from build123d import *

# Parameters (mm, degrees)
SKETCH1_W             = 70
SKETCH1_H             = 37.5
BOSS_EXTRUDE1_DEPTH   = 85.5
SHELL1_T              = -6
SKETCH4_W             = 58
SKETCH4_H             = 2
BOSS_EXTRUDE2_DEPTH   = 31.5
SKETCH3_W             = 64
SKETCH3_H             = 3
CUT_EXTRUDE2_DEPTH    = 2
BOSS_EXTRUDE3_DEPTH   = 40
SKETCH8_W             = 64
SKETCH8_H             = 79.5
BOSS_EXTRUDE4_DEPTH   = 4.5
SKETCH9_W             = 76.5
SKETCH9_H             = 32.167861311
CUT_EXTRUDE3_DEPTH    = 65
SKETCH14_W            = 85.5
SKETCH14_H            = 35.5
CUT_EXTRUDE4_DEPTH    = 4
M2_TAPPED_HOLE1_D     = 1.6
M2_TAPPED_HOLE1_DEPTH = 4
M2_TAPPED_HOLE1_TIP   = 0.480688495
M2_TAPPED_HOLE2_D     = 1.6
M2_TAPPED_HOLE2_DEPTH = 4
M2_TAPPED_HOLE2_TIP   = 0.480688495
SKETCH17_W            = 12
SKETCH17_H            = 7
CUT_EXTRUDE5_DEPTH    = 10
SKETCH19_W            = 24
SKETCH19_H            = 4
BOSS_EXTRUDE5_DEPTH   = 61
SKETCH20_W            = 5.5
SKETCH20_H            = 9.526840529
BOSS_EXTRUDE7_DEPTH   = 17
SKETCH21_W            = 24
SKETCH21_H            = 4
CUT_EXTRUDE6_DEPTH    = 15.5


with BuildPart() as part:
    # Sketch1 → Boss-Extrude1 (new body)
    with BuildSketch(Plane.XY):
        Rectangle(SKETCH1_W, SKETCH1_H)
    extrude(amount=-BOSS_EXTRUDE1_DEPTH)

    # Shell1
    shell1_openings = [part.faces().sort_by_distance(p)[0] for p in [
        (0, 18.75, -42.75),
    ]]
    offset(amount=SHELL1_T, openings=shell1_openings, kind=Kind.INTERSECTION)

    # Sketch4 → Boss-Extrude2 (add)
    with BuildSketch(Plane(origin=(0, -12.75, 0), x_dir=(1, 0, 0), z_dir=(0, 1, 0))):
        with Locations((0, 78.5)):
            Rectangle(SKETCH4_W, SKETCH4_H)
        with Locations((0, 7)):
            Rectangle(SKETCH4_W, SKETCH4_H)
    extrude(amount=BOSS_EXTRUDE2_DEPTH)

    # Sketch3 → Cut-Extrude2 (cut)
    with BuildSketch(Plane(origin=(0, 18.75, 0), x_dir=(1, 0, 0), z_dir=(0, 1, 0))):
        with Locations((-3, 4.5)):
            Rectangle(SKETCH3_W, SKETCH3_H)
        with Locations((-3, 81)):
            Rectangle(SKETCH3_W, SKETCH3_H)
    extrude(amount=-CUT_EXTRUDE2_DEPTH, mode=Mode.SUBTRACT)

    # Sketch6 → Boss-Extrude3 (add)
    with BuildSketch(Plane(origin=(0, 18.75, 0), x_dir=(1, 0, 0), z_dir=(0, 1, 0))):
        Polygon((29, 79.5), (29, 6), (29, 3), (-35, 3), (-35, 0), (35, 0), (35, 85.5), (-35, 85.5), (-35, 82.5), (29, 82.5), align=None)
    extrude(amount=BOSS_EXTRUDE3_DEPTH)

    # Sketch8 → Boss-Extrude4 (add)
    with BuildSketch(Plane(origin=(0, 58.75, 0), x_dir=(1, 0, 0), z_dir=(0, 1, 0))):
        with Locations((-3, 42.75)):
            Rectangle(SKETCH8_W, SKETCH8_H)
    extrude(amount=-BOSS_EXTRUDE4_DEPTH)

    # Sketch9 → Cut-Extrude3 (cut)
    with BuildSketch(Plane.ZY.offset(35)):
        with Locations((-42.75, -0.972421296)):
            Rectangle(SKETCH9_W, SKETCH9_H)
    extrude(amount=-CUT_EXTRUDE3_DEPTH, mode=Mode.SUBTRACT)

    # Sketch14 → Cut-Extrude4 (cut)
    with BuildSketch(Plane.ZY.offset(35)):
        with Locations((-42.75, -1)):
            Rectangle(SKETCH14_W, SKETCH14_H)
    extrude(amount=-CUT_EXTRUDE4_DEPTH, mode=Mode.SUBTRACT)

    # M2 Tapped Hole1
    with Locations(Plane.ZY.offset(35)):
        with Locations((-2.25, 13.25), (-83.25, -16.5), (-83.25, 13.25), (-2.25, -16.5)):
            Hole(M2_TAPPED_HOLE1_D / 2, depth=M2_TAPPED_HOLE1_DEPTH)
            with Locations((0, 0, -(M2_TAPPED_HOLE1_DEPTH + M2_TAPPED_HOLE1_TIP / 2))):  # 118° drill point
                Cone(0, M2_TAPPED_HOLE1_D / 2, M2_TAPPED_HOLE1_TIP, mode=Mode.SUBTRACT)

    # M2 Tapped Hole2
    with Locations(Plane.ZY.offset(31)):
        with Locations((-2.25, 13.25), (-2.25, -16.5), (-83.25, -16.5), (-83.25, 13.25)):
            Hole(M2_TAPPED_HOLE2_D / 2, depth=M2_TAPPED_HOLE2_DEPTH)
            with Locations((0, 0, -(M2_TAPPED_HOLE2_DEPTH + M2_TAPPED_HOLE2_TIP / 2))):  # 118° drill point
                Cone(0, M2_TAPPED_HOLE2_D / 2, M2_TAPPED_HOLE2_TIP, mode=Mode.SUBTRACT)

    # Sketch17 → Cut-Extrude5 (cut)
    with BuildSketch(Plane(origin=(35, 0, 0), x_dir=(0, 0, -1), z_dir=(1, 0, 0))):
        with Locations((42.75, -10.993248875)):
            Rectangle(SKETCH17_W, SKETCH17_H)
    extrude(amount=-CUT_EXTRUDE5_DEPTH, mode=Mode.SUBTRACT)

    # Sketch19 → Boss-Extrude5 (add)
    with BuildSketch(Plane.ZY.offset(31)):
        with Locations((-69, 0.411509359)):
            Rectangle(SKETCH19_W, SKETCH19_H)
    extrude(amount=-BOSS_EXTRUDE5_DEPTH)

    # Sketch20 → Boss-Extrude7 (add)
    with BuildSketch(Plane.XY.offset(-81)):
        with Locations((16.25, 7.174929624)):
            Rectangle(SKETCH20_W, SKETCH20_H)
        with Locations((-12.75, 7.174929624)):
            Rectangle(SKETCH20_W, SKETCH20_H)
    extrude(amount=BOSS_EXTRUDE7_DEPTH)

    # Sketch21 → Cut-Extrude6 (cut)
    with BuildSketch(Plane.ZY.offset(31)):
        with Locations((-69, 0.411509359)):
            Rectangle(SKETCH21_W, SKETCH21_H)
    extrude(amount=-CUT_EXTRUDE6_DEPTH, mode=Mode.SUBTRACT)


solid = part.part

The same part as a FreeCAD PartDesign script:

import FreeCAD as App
import Part
import Sketcher
from FreeCAD import Vector
Q = App.Units.Quantity


def faces_at(feature, points):
    """Names of the faces that lie closest to the given points."""
    faces = feature.Shape.Faces
    near = lambda p: min(range(len(faces)), key=lambda i: faces[i].distToShape(Part.Vertex(*p))[0])
    return sorted({f"Face{near(p) + 1}" for p in points})


def add_polygon(sketch, points):
    """Adds a closed chain of lines whose ends are joined by coincident constraints."""
    first, n = sketch.GeometryCount, len(points)
    for a, b in zip(points, points[1:] + points[:1]):
        sketch.addGeometry(Part.LineSegment(App.Vector(*a, 0), App.Vector(*b, 0)), False)
    for i in range(n):
        sketch.addConstraint(Sketcher.Constraint("Coincident", first + i, 2, first + (i + 1) % n, 1))

doc = App.newDocument("Part")
params = doc.addObject("Spreadsheet::Sheet", "Params")
for row, (alias, value) in enumerate([
    ("sketch1_width", "70 mm"),
    ("sketch1_height", "37.5 mm"),
    ("pad1_length", "85.5 mm"),
    ("thickness_wall", "6 mm"),
    ("sketch2_width", "58 mm"),
    ("sketch2_height", "2 mm"),
    ("pad2_length", "31.5 mm"),
    ("sketch3_width", "64 mm"),
    ("sketch3_height", "3 mm"),
    ("pocket1_length", "2 mm"),
    ("sketch4_width", "64 mm"),
    ("sketch4_width2", "70 mm"),
    ("sketch4_height", "3 mm"),
    ("sketch4_height2", "85.5 mm"),
    ("pad3_length", "40 mm"),
    ("sketch5_width", "64 mm"),
    ("sketch5_height", "79.5 mm"),
    ("pad4_length", "4.5 mm"),
    ("sketch6_height", "76.5 mm"),
    ("pocket2_length", "65 mm"),
    ("sketch7_width", "35.5 mm"),
    ("sketch7_height", "85.5 mm"),
    ("pocket3_length", "4 mm"),
    ("sketch8_diameter", "1.6 mm"),
    ("hole_diameter", "1.6 mm"),
    ("hole_depth", "4 mm"),
    ("sketch9_diameter", "1.6 mm"),
    ("hole2_diameter", "1.6 mm"),
    ("hole2_depth", "4 mm"),
    ("sketch10_width", "7 mm"),
    ("sketch10_height", "12 mm"),
    ("pocket4_length", "10 mm"),
    ("sketch11_width", "4 mm"),
    ("sketch11_height", "24 mm"),
    ("pad5_length", "61 mm"),
    ("sketch12_width", "5.5 mm"),
    ("pad6_length", "17 mm"),
    ("sketch13_width", "4 mm"),
    ("sketch13_height", "24 mm"),
    ("pocket5_length", "15.5 mm"),
], start=1):
    params.set(f"A{row}", alias)
    params.set(f"B{row}", "=" + value)
    params.setAlias(f"B{row}", alias)

body = doc.addObject("PartDesign::Body", "Body")

# Sketch on XY plane
sketch1 = body.newObject("Sketcher::SketchObject", "Sketch")
sketch1.AttachmentSupport = (doc.getObject("XY_Plane"), [""])
sketch1.MapMode = "FlatFace"
add_polygon(sketch1, [(-35, 19), (-35, -19), (35, -19), (35, 19)])  # lines 0-3
sketch1.addConstraint(Sketcher.Constraint("Vertical", 0))
sketch1.addConstraint(Sketcher.Constraint("Horizontal", 1))
sketch1.addConstraint(Sketcher.Constraint("Vertical", 2))
sketch1.addConstraint(Sketcher.Constraint("Horizontal", 3))
sketch1.addConstraint(Sketcher.Constraint("Symmetric", 0, 2, 2, 2, -1, 1))
sketch1.addConstraint(Sketcher.Constraint("DistanceX", 1, 1, 1, 2, Q("70 mm")))
sketch1.addConstraint(Sketcher.Constraint("DistanceY", 0, 2, 0, 1, Q("37.5 mm")))
sketch1.setExpression("Constraints[9]", "Params.sketch1_width")
sketch1.setExpression("Constraints[10]", "Params.sketch1_height")
pad1 = body.newObject("PartDesign::Pad", "Pad")
pad1.Profile = sketch1
pad1.setExpression("Length", "Params.pad1_length")
pad1.Reversed = True
doc.recompute()

thickness = body.newObject("PartDesign::Thickness", "Thickness")
thickness.Base = (pad1, faces_at(pad1, [(0, 18.75, -42.75)]))
thickness.setExpression("Value", "Params.thickness_wall")
thickness.Reversed = True
thickness.Join = "Intersection"

# Sketch on XZ plane
sketch2 = body.newObject("Sketcher::SketchObject", "Sketch001")
sketch2.AttachmentSupport = (doc.getObject("XZ_Plane"), [""])
sketch2.MapMode = "FlatFace"
sketch2.AttachmentOffset = App.Placement(Vector(0, 0, 12.75), App.Rotation())
add_polygon(sketch2, [(-29, -79.5), (-29, -77.5), (29, -77.5), (29, -79.5)])  # lines 0-3
add_polygon(sketch2, [(-29, -8), (-29, -6), (29, -6), (29, -8)])  # lines 4-7
sketch2.addConstraint(Sketcher.Constraint("Vertical", 0))
sketch2.addConstraint(Sketcher.Constraint("Horizontal", 1))
sketch2.addConstraint(Sketcher.Constraint("Vertical", 2))
sketch2.addConstraint(Sketcher.Constraint("Horizontal", 3))
sketch2.addConstraint(Sketcher.Constraint("Vertical", 4))
sketch2.addConstraint(Sketcher.Constraint("Horizontal", 5))
sketch2.addConstraint(Sketcher.Constraint("Vertical", 6))
sketch2.addConstraint(Sketcher.Constraint("Horizontal", 7))
sketch2.addConstraint(Sketcher.Constraint("Vertical", 3, 2, 4, 2))
sketch2.addConstraint(Sketcher.Constraint("Vertical", 2, 2, 5, 2))
sketch2.addConstraint(Sketcher.Constraint("Equal", 2, 4))
sketch2.addConstraint(Sketcher.Constraint("DistanceX", 1, 1, 1, 2, Q("58 mm")))
sketch2.addConstraint(Sketcher.Constraint("DistanceY", 0, 1, 0, 2, Q("2 mm")))
sketch2.addConstraint(Sketcher.Constraint("DistanceX", 0, 2, -1, 1, Q("29 mm")))
sketch2.addConstraint(Sketcher.Constraint("DistanceY", 4, 2, -1, 1, Q("6 mm")))
sketch2.addConstraint(Sketcher.Constraint("DistanceY", 0, 2, -1, 1, Q("77.5 mm")))
sketch2.setExpression("Constraints[19]", "Params.sketch2_width")
sketch2.setExpression("Constraints[20]", "Params.sketch2_height")
pad2 = body.newObject("PartDesign::Pad", "Pad001")
pad2.Profile = sketch2
pad2.setExpression("Length", "Params.pad2_length")
pad2.Reversed = True

# Sketch on XZ plane
sketch3 = body.newObject("Sketcher::SketchObject", "Sketch002")
sketch3.AttachmentSupport = (doc.getObject("XZ_Plane"), [""])
sketch3.MapMode = "FlatFace"
sketch3.AttachmentOffset = App.Placement(Vector(0, 0, -18.75), App.Rotation())
add_polygon(sketch3, [(-35, -6), (-35, -3), (29, -3), (29, -6)])  # lines 0-3
add_polygon(sketch3, [(-35, -82.5), (-35, -79.5), (29, -79.5), (29, -82.5)])  # lines 4-7
sketch3.addConstraint(Sketcher.Constraint("Vertical", 0))
sketch3.addConstraint(Sketcher.Constraint("Horizontal", 1))
sketch3.addConstraint(Sketcher.Constraint("Vertical", 2))
sketch3.addConstraint(Sketcher.Constraint("Horizontal", 3))
sketch3.addConstraint(Sketcher.Constraint("Vertical", 4))
sketch3.addConstraint(Sketcher.Constraint("Horizontal", 5))
sketch3.addConstraint(Sketcher.Constraint("Vertical", 6))
sketch3.addConstraint(Sketcher.Constraint("Horizontal", 7))
sketch3.addConstraint(Sketcher.Constraint("Vertical", 3, 2, 4, 2))
sketch3.addConstraint(Sketcher.Constraint("Vertical", 2, 2, 5, 2))
sketch3.addConstraint(Sketcher.Constraint("Equal", 2, 4))
sketch3.addConstraint(Sketcher.Constraint("DistanceX", 1, 1, 1, 2, Q("64 mm")))
sketch3.addConstraint(Sketcher.Constraint("DistanceY", 0, 1, 0, 2, Q("3 mm")))
sketch3.addConstraint(Sketcher.Constraint("DistanceX", 0, 2, -1, 1, Q("35 mm")))
sketch3.addConstraint(Sketcher.Constraint("DistanceY", 0, 2, -1, 1, Q("3 mm")))
sketch3.addConstraint(Sketcher.Constraint("DistanceY", 4, 2, -1, 1, Q("79.5 mm")))
sketch3.setExpression("Constraints[19]", "Params.sketch3_width")
sketch3.setExpression("Constraints[20]", "Params.sketch3_height")
pocket1 = body.newObject("PartDesign::Pocket", "Pocket")
pocket1.Profile = sketch3
pocket1.setExpression("Length", "Params.pocket1_length")
pocket1.Reversed = True

# Sketch on XZ plane
sketch4 = body.newObject("Sketcher::SketchObject", "Sketch003")
sketch4.AttachmentSupport = (doc.getObject("XZ_Plane"), [""])
sketch4.MapMode = "FlatFace"
sketch4.AttachmentOffset = App.Placement(Vector(0, 0, -18.75), App.Rotation())
add_polygon(sketch4, [(29, -3), (-35, -3), (-35, 0), (35, 0), (35, -85.5), (-35, -85.5), (-35, -82.5), (29, -82.5)])  # lines 0-7
sketch4.addConstraint(Sketcher.Constraint("Horizontal", 0))
sketch4.addConstraint(Sketcher.Constraint("Vertical", 1))
sketch4.addConstraint(Sketcher.Constraint("Horizontal", 2))
sketch4.addConstraint(Sketcher.Constraint("Vertical", 3))
sketch4.addConstraint(Sketcher.Constraint("Horizontal", 4))
sketch4.addConstraint(Sketcher.Constraint("Vertical", 5))
sketch4.addConstraint(Sketcher.Constraint("Horizontal", 6))
sketch4.addConstraint(Sketcher.Constraint("Vertical", 7))
sketch4.addConstraint(Sketcher.Constraint("Symmetric", 1, 2, 2, 2, -1, 1))
sketch4.addConstraint(Sketcher.Constraint("Vertical", 1, 2, 4, 2))
sketch4.addConstraint(Sketcher.Constraint("Equal", 1, 5))
sketch4.addConstraint(Sketcher.Constraint("DistanceX", 0, 2, 0, 1, Q("64 mm")))
sketch4.addConstraint(Sketcher.Constraint("DistanceX", 2, 1, 2, 2, Q("70 mm")))
sketch4.addConstraint(Sketcher.Constraint("DistanceY", 1, 1, 1, 2, Q("3 mm")))
sketch4.addConstraint(Sketcher.Constraint("DistanceY", 3, 2, 3, 1, Q("85.5 mm")))
sketch4.setExpression("Constraints[19]", "Params.sketch4_width")
sketch4.setExpression("Constraints[20]", "Params.sketch4_width2")
sketch4.setExpression("Constraints[21]", "Params.sketch4_height")
sketch4.setExpression("Constraints[22]", "Params.sketch4_height2")
pad3 = body.newObject("PartDesign::Pad", "Pad002")
pad3.Profile = sketch4
pad3.setExpression("Length", "Params.pad3_length")
pad3.Reversed = True

# Sketch on XZ plane
sketch5 = body.newObject("Sketcher::SketchObject", "Sketch004")
sketch5.AttachmentSupport = (doc.getObject("XZ_Plane"), [""])
sketch5.MapMode = "FlatFace"
sketch5.AttachmentOffset = App.Placement(Vector(0, 0, -58.75), App.Rotation())
add_polygon(sketch5, [(-35, -82), (-35, -3), (29, -3), (29, -82)])  # lines 0-3
sketch5.addConstraint(Sketcher.Constraint("Vertical", 0))
sketch5.addConstraint(Sketcher.Constraint("Horizontal", 1))
sketch5.addConstraint(Sketcher.Constraint("Vertical", 2))
sketch5.addConstraint(Sketcher.Constraint("Horizontal", 3))
sketch5.addConstraint(Sketcher.Constraint("DistanceX", 1, 1, 1, 2, Q("64 mm")))
sketch5.addConstraint(Sketcher.Constraint("DistanceY", 0, 1, 0, 2, Q("79.5 mm")))
sketch5.addConstraint(Sketcher.Constraint("DistanceX", 0, 2, -1, 1, Q("35 mm")))
sketch5.addConstraint(Sketcher.Constraint("DistanceY", 0, 2, -1, 1, Q("3 mm")))
sketch5.setExpression("Constraints[8]", "Params.sketch5_width")
sketch5.setExpression("Constraints[9]", "Params.sketch5_height")
pad4 = body.newObject("PartDesign::Pad", "Pad003")
pad4.Profile = sketch5
pad4.setExpression("Length", "Params.pad4_length")

# Sketch on YZ plane
sketch6 = body.newObject("Sketcher::SketchObject", "Sketch005")
sketch6.AttachmentSupport = (doc.getObject("YZ_Plane"), [""])
sketch6.MapMode = "FlatFace"
sketch6.AttachmentOffset = App.Placement(Vector(0, 0, -35), App.Rotation())
add_polygon(sketch6, [(15, -81), (-17, -81), (-17, -4), (15, -4)])  # lines 0-3
sketch6.addConstraint(Sketcher.Constraint("Horizontal", 0))
sketch6.addConstraint(Sketcher.Constraint("Vertical", 1))
sketch6.addConstraint(Sketcher.Constraint("Horizontal", 2))
sketch6.addConstraint(Sketcher.Constraint("Vertical", 3))
sketch6.addConstraint(Sketcher.Constraint("DistanceY", 1, 1, 1, 2, Q("76.5 mm")))
sketch6.addConstraint(Sketcher.Constraint("DistanceY", 0, 2, -1, 1, Q("81 mm")))
sketch6.addConstraint(Sketcher.Constraint("DistanceX", 0, 2, 0, 1, Q("32.167861 mm")))
sketch6.addConstraint(Sketcher.Constraint("DistanceX", 0, 2, -1, 1, Q("17.056352 mm")))
sketch6.setExpression("Constraints[8]", "Params.sketch6_height")
pocket2 = body.newObject("PartDesign::Pocket", "Pocket001")
pocket2.Profile = sketch6
pocket2.setExpression("Length", "Params.pocket2_length")
pocket2.Reversed = True

# Sketch on YZ plane
sketch7 = body.newObject("Sketcher::SketchObject", "Sketch006")
sketch7.AttachmentSupport = (doc.getObject("YZ_Plane"), [""])
sketch7.MapMode = "FlatFace"
sketch7.AttachmentOffset = App.Placement(Vector(0, 0, -35), App.Rotation())
add_polygon(sketch7, [(17, -86), (-19, -86), (-19, 0), (17, 0)])  # lines 0-3
sketch7.addConstraint(Sketcher.Constraint("Horizontal", 0))
sketch7.addConstraint(Sketcher.Constraint("Vertical", 1))
sketch7.addConstraint(Sketcher.Constraint("Horizontal", 2))
sketch7.addConstraint(Sketcher.Constraint("Vertical", 3))
sketch7.addConstraint(Sketcher.Constraint("PointOnObject", 1, 2, -1))
sketch7.addConstraint(Sketcher.Constraint("DistanceX", 0, 2, 0, 1, Q("35.5 mm")))
sketch7.addConstraint(Sketcher.Constraint("DistanceY", 1, 1, 1, 2, Q("85.5 mm")))
sketch7.addConstraint(Sketcher.Constraint("DistanceX", 0, 2, -1, 1, Q("18.75 mm")))
sketch7.setExpression("Constraints[9]", "Params.sketch7_width")
sketch7.setExpression("Constraints[10]", "Params.sketch7_height")
pocket3 = body.newObject("PartDesign::Pocket", "Pocket002")
pocket3.Profile = sketch7
pocket3.setExpression("Length", "Params.pocket3_length")
pocket3.Reversed = True

# Sketch on YZ plane
sketch8 = body.newObject("Sketcher::SketchObject", "Sketch007")
sketch8.AttachmentSupport = (doc.getObject("YZ_Plane"), [""])
sketch8.MapMode = "FlatFace"
sketch8.AttachmentOffset = App.Placement(Vector(0, 0, -35), App.Rotation())
sketch8.addGeometry(Part.Circle(Vector(13.2, -2.2, 0), Vector(0, 0, 1), 0.8), False)
sketch8.addGeometry(Part.Circle(Vector(-16.5, -83.2, 0), Vector(0, 0, 1), 0.8), False)
sketch8.addGeometry(Part.Circle(Vector(13.2, -83.2, 0), Vector(0, 0, 1), 0.8), False)
sketch8.addGeometry(Part.Circle(Vector(-16.5, -2.2, 0), Vector(0, 0, 1), 0.8), False)
sketch8.addConstraint(Sketcher.Constraint("Equal", 0, 1))
sketch8.addConstraint(Sketcher.Constraint("Equal", 1, 2))
sketch8.addConstraint(Sketcher.Constraint("Equal", 2, 3))
sketch8.addConstraint(Sketcher.Constraint("Horizontal", 1, 3, 2, 3))
sketch8.addConstraint(Sketcher.Constraint("Horizontal", 0, 3, 3, 3))
sketch8.addConstraint(Sketcher.Constraint("Vertical", 0, 3, 2, 3))
sketch8.addConstraint(Sketcher.Constraint("Vertical", 1, 3, 3, 3))
sketch8.addConstraint(Sketcher.Constraint("Diameter", 0, Q("1.6 mm")))
sketch8.addConstraint(Sketcher.Constraint("DistanceY", 1, 3, 0, 3, Q("81 mm")))
sketch8.addConstraint(Sketcher.Constraint("DistanceX", 1, 3, -1, 1, Q("16.5 mm")))
sketch8.addConstraint(Sketcher.Constraint("DistanceX", -1, 1, 0, 3, Q("13.25 mm")))
sketch8.addConstraint(Sketcher.Constraint("DistanceY", 0, 3, -1, 1, Q("2.25 mm")))
sketch8.setExpression("Constraints[7]", "Params.sketch8_diameter")
doc.recompute()
hole = body.newObject("PartDesign::Hole", "Hole")
hole.Profile = sketch8
hole.ThreadType = "None"
hole.setExpression("Diameter", "Params.hole_diameter")
hole.DepthType = "Dimension"
hole.setExpression("Depth", "Params.hole_depth")
hole.DrillPoint = "Angled"
hole.DrillPointAngle = 118
hole.Reversed = True

# Sketch on YZ plane
sketch9 = body.newObject("Sketcher::SketchObject", "Sketch008")
sketch9.AttachmentSupport = (doc.getObject("YZ_Plane"), [""])
sketch9.MapMode = "FlatFace"
sketch9.AttachmentOffset = App.Placement(Vector(0, 0, -31), App.Rotation())
sketch9.addGeometry(Part.Circle(Vector(13.2, -2.2, 0), Vector(0, 0, 1), 0.8), False)
sketch9.addGeometry(Part.Circle(Vector(-16.5, -2.2, 0), Vector(0, 0, 1), 0.8), False)
sketch9.addGeometry(Part.Circle(Vector(-16.5, -83.2, 0), Vector(0, 0, 1), 0.8), False)
sketch9.addGeometry(Part.Circle(Vector(13.2, -83.2, 0), Vector(0, 0, 1), 0.8), False)
sketch9.addConstraint(Sketcher.Constraint("Equal", 0, 1))
sketch9.addConstraint(Sketcher.Constraint("Equal", 1, 2))
sketch9.addConstraint(Sketcher.Constraint("Equal", 2, 3))
sketch9.addConstraint(Sketcher.Constraint("Horizontal", 0, 3, 1, 3))
sketch9.addConstraint(Sketcher.Constraint("Horizontal", 2, 3, 3, 3))
sketch9.addConstraint(Sketcher.Constraint("Vertical", 1, 3, 2, 3))
sketch9.addConstraint(Sketcher.Constraint("Vertical", 0, 3, 3, 3))
sketch9.addConstraint(Sketcher.Constraint("Diameter", 0, Q("1.6 mm")))
sketch9.addConstraint(Sketcher.Constraint("DistanceY", 2, 3, 1, 3, Q("81 mm")))
sketch9.addConstraint(Sketcher.Constraint("DistanceX", 1, 3, -1, 1, Q("16.5 mm")))
sketch9.addConstraint(Sketcher.Constraint("DistanceX", -1, 1, 0, 3, Q("13.25 mm")))
sketch9.addConstraint(Sketcher.Constraint("DistanceY", 0, 3, -1, 1, Q("2.25 mm")))
sketch9.setExpression("Constraints[7]", "Params.sketch9_diameter")
doc.recompute()
hole2 = body.newObject("PartDesign::Hole", "Hole001")
hole2.Profile = sketch9
hole2.ThreadType = "None"
hole2.setExpression("Diameter", "Params.hole2_diameter")
hole2.DepthType = "Dimension"
hole2.setExpression("Depth", "Params.hole2_depth")
hole2.DrillPoint = "Angled"
hole2.DrillPointAngle = 118
hole2.Reversed = True

# Sketch on YZ plane
sketch10 = body.newObject("Sketcher::SketchObject", "Sketch009")
sketch10.AttachmentSupport = (doc.getObject("YZ_Plane"), [""])
sketch10.MapMode = "FlatFace"
sketch10.AttachmentOffset = App.Placement(Vector(0, 0, 35), App.Rotation())
add_polygon(sketch10, [(-7, -37), (-14, -37), (-14, -49), (-7, -49)])  # lines 0-3
sketch10.addConstraint(Sketcher.Constraint("Horizontal", 0))
sketch10.addConstraint(Sketcher.Constraint("Vertical", 1))
sketch10.addConstraint(Sketcher.Constraint("Horizontal", 2))
sketch10.addConstraint(Sketcher.Constraint("Vertical", 3))
sketch10.addConstraint(Sketcher.Constraint("DistanceX", 0, 2, 0, 1, Q("7 mm")))
sketch10.addConstraint(Sketcher.Constraint("DistanceY", 1, 2, 1, 1, Q("12 mm")))
sketch10.addConstraint(Sketcher.Constraint("DistanceY", 0, 2, -1, 1, Q("36.75 mm")))
sketch10.addConstraint(Sketcher.Constraint("DistanceX", 0, 2, -1, 1, Q("14.493249 mm")))
sketch10.setExpression("Constraints[8]", "Params.sketch10_width")
sketch10.setExpression("Constraints[9]", "Params.sketch10_height")
pocket4 = body.newObject("PartDesign::Pocket", "Pocket003")
pocket4.Profile = sketch10
pocket4.setExpression("Length", "Params.pocket4_length")

# Sketch on YZ plane
sketch11 = body.newObject("Sketcher::SketchObject", "Sketch010")
sketch11.AttachmentSupport = (doc.getObject("YZ_Plane"), [""])
sketch11.MapMode = "FlatFace"
sketch11.AttachmentOffset = App.Placement(Vector(0, 0, -31), App.Rotation())
add_polygon(sketch11, [(2.4, -81), (-1.6, -81), (-1.6, -57), (2.4, -57)])  # lines 0-3
sketch11.addConstraint(Sketcher.Constraint("Horizontal", 0))
sketch11.addConstraint(Sketcher.Constraint("Vertical", 1))
sketch11.addConstraint(Sketcher.Constraint("Horizontal", 2))
sketch11.addConstraint(Sketcher.Constraint("Vertical", 3))
sketch11.addConstraint(Sketcher.Constraint("DistanceX", 0, 2, 0, 1, Q("4 mm")))
sketch11.addConstraint(Sketcher.Constraint("DistanceY", 1, 1, 1, 2, Q("24 mm")))
sketch11.addConstraint(Sketcher.Constraint("DistanceY", 0, 2, -1, 1, Q("81 mm")))
sketch11.addConstraint(Sketcher.Constraint("DistanceX", 0, 2, -1, 1, Q("1.588491 mm")))
sketch11.setExpression("Constraints[8]", "Params.sketch11_width")
sketch11.setExpression("Constraints[9]", "Params.sketch11_height")
pad5 = body.newObject("PartDesign::Pad", "Pad004")
pad5.Profile = sketch11
pad5.setExpression("Length", "Params.pad5_length")

# Sketch on XY plane
sketch12 = body.newObject("Sketcher::SketchObject", "Sketch011")
sketch12.AttachmentSupport = (doc.getObject("XY_Plane"), [""])
sketch12.MapMode = "FlatFace"
sketch12.AttachmentOffset = App.Placement(Vector(0, 0, -81), App.Rotation())
add_polygon(sketch12, [(14, 12), (14, 2), (19, 2), (19, 12)])  # lines 0-3
add_polygon(sketch12, [(-16, 12), (-16, 2), (-10, 2), (-10, 12)])  # lines 4-7
sketch12.addConstraint(Sketcher.Constraint("Vertical", 0))
sketch12.addConstraint(Sketcher.Constraint("Horizontal", 1))
sketch12.addConstraint(Sketcher.Constraint("Vertical", 2))
sketch12.addConstraint(Sketcher.Constraint("Horizontal", 3))
sketch12.addConstraint(Sketcher.Constraint("Vertical", 4))
sketch12.addConstraint(Sketcher.Constraint("Horizontal", 5))
sketch12.addConstraint(Sketcher.Constraint("Vertical", 6))
sketch12.addConstraint(Sketcher.Constraint("Horizontal", 7))
sketch12.addConstraint(Sketcher.Constraint("Horizontal", 1, 2, 4, 2))
sketch12.addConstraint(Sketcher.Constraint("Horizontal", 3, 2, 6, 2))
sketch12.addConstraint(Sketcher.Constraint("Equal", 3, 5))
sketch12.addConstraint(Sketcher.Constraint("DistanceX", 1, 1, 1, 2, Q("5.5 mm")))
sketch12.addConstraint(Sketcher.Constraint("DistanceX", -1, 1, 1, 2, Q("19 mm")))
sketch12.addConstraint(Sketcher.Constraint("DistanceX", 5, 2, -1, 1, Q("10 mm")))
sketch12.addConstraint(Sketcher.Constraint("DistanceY", 0, 2, 0, 1, Q("9.526841 mm")))
sketch12.addConstraint(Sketcher.Constraint("DistanceY", -1, 1, 0, 2, Q("2.411509 mm")))
sketch12.setExpression("Constraints[19]", "Params.sketch12_width")
pad6 = body.newObject("PartDesign::Pad", "Pad005")
pad6.Profile = sketch12
pad6.setExpression("Length", "Params.pad6_length")

# Sketch on YZ plane
sketch13 = body.newObject("Sketcher::SketchObject", "Sketch012")
sketch13.AttachmentSupport = (doc.getObject("YZ_Plane"), [""])
sketch13.MapMode = "FlatFace"
sketch13.AttachmentOffset = App.Placement(Vector(0, 0, -31), App.Rotation())
add_polygon(sketch13, [(2.4, -81), (-1.6, -81), (-1.6, -57), (2.4, -57)])  # lines 0-3
sketch13.addConstraint(Sketcher.Constraint("Horizontal", 0))
sketch13.addConstraint(Sketcher.Constraint("Vertical", 1))
sketch13.addConstraint(Sketcher.Constraint("Horizontal", 2))
sketch13.addConstraint(Sketcher.Constraint("Vertical", 3))
sketch13.addConstraint(Sketcher.Constraint("DistanceX", 0, 2, 0, 1, Q("4 mm")))
sketch13.addConstraint(Sketcher.Constraint("DistanceY", 1, 1, 1, 2, Q("24 mm")))
sketch13.addConstraint(Sketcher.Constraint("DistanceY", 0, 2, -1, 1, Q("81 mm")))
sketch13.addConstraint(Sketcher.Constraint("DistanceX", 0, 2, -1, 1, Q("1.588491 mm")))
sketch13.setExpression("Constraints[8]", "Params.sketch13_width")
sketch13.setExpression("Constraints[9]", "Params.sketch13_height")
pocket5 = body.newObject("PartDesign::Pocket", "Pocket004")
pocket5.Profile = sketch13
pocket5.setExpression("Length", "Params.pocket5_length")
pocket5.Reversed = True

doc.recompute()
